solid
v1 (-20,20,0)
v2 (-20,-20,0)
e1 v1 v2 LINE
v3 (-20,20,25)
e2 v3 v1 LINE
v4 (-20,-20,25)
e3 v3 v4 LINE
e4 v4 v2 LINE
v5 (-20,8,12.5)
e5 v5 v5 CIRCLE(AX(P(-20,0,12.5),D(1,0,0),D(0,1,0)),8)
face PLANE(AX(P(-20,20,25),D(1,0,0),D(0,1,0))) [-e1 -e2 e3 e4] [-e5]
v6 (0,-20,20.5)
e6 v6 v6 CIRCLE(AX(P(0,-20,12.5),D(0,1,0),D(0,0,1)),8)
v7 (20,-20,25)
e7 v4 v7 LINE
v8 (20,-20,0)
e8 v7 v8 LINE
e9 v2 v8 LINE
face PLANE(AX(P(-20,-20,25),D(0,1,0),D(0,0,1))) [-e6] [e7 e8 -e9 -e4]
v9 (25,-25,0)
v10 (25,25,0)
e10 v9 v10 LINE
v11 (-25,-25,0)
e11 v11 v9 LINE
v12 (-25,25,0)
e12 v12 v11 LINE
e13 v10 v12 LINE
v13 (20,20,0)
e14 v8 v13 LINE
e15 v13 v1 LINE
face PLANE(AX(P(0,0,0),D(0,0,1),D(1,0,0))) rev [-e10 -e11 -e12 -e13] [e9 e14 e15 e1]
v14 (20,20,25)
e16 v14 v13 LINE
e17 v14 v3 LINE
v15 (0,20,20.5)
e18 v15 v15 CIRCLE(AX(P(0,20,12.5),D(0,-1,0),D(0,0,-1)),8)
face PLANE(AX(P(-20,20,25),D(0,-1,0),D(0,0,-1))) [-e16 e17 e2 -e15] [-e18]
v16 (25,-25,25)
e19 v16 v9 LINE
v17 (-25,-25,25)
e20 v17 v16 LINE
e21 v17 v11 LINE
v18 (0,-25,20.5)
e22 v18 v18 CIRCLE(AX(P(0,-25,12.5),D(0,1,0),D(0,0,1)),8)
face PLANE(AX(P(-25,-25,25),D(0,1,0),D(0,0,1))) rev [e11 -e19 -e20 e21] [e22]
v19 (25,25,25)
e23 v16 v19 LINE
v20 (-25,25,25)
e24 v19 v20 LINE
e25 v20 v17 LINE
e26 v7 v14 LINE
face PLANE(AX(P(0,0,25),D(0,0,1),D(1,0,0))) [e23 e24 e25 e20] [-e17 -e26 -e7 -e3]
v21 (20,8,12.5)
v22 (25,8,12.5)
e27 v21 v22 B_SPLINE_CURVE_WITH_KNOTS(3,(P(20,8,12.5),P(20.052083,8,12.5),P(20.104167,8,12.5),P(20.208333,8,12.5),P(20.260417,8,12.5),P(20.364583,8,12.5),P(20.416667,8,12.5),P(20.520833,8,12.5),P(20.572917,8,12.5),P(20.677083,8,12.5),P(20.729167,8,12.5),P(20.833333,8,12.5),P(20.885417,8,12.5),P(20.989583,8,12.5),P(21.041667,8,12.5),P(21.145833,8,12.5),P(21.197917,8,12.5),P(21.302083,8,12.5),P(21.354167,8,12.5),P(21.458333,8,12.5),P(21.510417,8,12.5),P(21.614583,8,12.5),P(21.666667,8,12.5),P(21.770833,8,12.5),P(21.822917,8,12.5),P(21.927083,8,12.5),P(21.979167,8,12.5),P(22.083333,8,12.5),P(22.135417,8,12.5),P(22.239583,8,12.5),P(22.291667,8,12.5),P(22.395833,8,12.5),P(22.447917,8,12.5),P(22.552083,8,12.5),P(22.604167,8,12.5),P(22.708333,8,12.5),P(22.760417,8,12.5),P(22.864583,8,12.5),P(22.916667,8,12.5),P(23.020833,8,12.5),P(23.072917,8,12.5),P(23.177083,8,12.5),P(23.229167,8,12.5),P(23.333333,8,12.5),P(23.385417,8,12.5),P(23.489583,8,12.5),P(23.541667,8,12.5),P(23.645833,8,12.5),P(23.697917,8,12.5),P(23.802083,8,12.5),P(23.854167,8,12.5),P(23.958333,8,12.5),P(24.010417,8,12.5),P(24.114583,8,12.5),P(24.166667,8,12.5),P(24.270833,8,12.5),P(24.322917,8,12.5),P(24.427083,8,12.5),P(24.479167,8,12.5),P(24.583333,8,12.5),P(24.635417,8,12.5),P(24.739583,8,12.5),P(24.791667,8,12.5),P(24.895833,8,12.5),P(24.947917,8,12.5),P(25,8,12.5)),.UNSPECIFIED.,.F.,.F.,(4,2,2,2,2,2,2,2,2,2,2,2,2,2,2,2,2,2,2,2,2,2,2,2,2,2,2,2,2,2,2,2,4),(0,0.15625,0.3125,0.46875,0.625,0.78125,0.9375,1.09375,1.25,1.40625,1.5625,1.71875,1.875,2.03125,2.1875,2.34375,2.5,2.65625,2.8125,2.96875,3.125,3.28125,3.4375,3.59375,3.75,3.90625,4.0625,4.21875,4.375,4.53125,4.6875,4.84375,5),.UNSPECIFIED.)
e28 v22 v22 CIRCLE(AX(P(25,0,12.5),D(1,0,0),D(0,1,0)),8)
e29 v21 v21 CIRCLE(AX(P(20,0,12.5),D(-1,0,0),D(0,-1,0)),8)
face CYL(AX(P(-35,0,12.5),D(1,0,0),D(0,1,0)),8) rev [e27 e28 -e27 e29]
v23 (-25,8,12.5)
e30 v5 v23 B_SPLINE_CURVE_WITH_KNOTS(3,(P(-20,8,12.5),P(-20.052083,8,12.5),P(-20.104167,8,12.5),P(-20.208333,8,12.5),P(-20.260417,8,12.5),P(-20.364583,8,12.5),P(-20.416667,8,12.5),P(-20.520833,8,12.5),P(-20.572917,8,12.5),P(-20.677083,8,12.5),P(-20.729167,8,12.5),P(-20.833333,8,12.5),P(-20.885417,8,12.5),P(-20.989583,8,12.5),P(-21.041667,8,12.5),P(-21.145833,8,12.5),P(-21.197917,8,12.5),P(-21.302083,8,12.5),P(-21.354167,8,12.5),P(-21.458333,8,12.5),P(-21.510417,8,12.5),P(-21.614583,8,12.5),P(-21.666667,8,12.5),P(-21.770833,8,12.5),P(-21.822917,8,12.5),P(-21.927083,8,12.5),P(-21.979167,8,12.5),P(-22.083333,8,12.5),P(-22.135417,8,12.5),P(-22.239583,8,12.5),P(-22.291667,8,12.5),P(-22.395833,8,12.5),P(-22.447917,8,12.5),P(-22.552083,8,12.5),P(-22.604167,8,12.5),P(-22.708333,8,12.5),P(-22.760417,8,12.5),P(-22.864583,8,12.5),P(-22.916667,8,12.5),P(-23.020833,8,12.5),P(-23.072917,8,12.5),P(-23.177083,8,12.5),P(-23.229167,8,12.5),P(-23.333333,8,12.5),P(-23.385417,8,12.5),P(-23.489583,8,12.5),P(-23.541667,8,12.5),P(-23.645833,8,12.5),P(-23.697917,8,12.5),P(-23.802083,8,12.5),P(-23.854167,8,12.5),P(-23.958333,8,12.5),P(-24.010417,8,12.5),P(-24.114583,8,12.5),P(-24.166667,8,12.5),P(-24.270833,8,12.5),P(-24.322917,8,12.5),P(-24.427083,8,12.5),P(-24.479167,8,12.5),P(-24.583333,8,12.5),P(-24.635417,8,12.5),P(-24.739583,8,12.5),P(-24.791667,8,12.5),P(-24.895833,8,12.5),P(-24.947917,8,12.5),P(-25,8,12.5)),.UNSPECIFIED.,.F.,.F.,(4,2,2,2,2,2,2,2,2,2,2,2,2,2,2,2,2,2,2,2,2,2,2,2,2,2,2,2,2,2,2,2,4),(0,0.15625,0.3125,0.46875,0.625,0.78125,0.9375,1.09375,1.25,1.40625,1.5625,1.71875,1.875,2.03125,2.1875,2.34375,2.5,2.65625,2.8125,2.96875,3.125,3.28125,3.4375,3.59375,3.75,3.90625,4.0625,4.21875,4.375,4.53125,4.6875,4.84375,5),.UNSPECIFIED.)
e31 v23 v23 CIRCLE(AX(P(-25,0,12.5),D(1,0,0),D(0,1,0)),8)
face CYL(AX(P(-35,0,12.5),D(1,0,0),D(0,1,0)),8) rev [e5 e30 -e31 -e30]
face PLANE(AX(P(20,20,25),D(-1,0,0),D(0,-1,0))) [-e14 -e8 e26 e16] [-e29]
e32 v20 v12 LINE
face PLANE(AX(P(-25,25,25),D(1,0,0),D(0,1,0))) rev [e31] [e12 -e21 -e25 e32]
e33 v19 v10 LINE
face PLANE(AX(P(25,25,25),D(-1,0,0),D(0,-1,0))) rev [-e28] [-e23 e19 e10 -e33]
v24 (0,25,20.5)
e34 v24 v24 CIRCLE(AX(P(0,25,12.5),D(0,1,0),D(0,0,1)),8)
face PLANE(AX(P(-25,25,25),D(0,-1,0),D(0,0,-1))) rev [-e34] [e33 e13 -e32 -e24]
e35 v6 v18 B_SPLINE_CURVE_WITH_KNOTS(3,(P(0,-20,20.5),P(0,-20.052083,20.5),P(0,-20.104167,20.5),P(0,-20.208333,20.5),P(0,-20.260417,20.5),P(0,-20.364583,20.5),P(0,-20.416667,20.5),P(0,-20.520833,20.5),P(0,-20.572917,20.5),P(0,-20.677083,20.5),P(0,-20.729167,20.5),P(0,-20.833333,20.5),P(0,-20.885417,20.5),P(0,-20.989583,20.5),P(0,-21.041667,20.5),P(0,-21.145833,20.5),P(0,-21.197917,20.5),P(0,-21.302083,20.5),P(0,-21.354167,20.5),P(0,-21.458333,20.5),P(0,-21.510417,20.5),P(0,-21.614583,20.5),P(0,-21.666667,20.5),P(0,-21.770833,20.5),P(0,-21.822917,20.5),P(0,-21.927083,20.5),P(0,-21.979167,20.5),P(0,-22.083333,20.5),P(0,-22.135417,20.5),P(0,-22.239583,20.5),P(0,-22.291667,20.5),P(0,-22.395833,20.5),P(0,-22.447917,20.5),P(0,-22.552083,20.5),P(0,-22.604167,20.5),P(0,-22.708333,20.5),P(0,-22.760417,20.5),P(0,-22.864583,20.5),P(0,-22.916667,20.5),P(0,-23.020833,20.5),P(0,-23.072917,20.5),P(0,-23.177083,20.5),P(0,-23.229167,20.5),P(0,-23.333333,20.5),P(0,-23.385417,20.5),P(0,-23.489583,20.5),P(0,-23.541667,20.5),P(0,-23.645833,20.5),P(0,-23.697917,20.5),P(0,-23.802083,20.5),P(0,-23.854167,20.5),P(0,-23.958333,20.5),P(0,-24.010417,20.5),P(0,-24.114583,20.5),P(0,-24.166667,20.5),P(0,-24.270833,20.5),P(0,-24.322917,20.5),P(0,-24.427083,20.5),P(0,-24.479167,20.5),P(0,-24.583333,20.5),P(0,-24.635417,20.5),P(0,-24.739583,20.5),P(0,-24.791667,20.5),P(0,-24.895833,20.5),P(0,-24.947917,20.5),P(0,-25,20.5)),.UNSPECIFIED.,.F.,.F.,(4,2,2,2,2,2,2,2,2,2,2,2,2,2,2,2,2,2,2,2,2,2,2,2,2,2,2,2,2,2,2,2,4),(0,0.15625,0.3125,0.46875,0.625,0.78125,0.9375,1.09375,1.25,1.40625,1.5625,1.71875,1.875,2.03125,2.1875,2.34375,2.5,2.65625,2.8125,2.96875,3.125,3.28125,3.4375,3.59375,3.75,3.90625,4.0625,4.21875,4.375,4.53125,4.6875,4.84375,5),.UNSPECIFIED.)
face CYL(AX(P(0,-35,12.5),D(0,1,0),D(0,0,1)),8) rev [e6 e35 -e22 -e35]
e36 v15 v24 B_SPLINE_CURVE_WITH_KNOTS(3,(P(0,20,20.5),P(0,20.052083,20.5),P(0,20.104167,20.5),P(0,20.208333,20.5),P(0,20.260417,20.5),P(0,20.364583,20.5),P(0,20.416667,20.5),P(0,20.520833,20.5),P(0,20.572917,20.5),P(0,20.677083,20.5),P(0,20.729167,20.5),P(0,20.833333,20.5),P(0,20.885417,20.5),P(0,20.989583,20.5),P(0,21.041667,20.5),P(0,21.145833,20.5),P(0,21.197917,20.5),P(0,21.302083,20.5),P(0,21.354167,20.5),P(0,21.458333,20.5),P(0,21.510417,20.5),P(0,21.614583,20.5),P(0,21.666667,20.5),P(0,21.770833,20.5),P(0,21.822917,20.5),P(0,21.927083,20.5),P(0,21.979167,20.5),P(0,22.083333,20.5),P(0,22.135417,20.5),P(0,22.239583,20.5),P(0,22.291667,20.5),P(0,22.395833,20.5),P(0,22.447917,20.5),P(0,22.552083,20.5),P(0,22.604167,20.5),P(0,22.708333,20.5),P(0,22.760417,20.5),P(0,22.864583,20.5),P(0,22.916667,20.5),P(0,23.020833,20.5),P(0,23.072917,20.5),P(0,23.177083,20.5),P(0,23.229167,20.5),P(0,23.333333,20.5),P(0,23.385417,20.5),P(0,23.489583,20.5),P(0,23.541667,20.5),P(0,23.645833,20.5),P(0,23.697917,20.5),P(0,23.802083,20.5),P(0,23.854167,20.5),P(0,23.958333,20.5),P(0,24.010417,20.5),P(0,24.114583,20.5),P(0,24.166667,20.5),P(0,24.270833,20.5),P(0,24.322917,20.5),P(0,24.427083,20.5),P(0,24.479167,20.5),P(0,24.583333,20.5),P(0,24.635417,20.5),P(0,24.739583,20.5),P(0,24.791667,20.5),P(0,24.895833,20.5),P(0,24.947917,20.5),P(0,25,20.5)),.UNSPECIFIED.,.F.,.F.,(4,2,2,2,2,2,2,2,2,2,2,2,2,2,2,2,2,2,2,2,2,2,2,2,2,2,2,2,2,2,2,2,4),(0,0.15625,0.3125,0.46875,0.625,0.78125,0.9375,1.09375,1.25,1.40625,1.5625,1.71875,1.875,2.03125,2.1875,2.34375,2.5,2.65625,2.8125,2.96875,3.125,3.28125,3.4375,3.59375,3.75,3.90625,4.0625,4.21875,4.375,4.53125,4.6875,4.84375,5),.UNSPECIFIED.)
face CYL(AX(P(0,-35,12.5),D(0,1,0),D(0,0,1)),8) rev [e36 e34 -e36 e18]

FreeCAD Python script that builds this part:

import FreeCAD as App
import Part
import Sketcher
from FreeCAD import Vector
Q = App.Units.Quantity


def add_polygon(sketch, points):
    """Adds a closed chain of lines whose ends are joined by coincident constraints."""
    first, n = sketch.GeometryCount, len(points)
    for a, b in zip(points, points[1:] + points[:1]):
        sketch.addGeometry(Part.LineSegment(App.Vector(*a, 0), App.Vector(*b, 0)), False)
    for i in range(n):
        sketch.addConstraint(Sketcher.Constraint("Coincident", first + i, 2, first + (i + 1) % n, 1))

doc = App.newDocument("Part")
body = doc.addObject("PartDesign::Body", "Body")

# Sketch on XY plane
sketch1 = body.newObject("Sketcher::SketchObject", "Sketch")
sketch1.AttachmentSupport = (doc.getObject("XY_Plane"), [""])
sketch1.MapMode = "FlatFace"
add_polygon(sketch1, [(-25, 25), (-25, -25), (25, -25), (25, 25)])  # lines 0-3
add_polygon(sketch1, [(20, -20), (-20, -20), (-20, 20), (20, 20)])  # lines 4-7
sketch1.addConstraint([
    Sketcher.Constraint("Vertical", 0),
    Sketcher.Constraint("Horizontal", 1),
    Sketcher.Constraint("Vertical", 2),
    Sketcher.Constraint("Horizontal", 3),
    Sketcher.Constraint("Horizontal", 4),
    Sketcher.Constraint("Vertical", 5),
    Sketcher.Constraint("Horizontal", 6),
    Sketcher.Constraint("Vertical", 7),
    Sketcher.Constraint("Symmetric", 0, 2, 2, 2, -1, 1),
    Sketcher.Constraint("Symmetric", 4, 2, 6, 2, -1, 1),
    Sketcher.Constraint("Equal", 3, 0),
    Sketcher.Constraint("Equal", 6, 5),
    Sketcher.Constraint("DistanceX", 1, 1, 1, 2, Q("50 mm")),
    Sketcher.Constraint("DistanceX", 4, 2, 4, 1, Q("40 mm")),
])
pad1 = body.newObject("PartDesign::Pad", "Pad")
pad1.Profile = sketch1
pad1.Length = 25

# Sketch on XZ plane
sketch2 = body.newObject("Sketcher::SketchObject", "Sketch001")
sketch2.AttachmentSupport = (doc.getObject("XZ_Plane"), [""])
sketch2.MapMode = "FlatFace"
sketch2.AttachmentOffset = App.Placement(Vector(0, 0, -25), App.Rotation())
sketch2.addGeometry(Part.Circle(Vector(0, 12, 0), Vector(0, 0, 1), 8), False)
sketch2.addConstraint([
    Sketcher.Constraint("PointOnObject", 0, 3, -2),
    Sketcher.Constraint("Diameter", 0, Q("16 mm")),
    Sketcher.Constraint("DistanceY", -1, 1, 0, 3, Q("12.5 mm")),
])
pocket1 = body.newObject("PartDesign::Pocket", "Pocket")
pocket1.Profile = sketch2
pocket1.Length = 60
pocket1.Reversed = True

# Sketch on YZ plane
sketch3 = body.newObject("Sketcher::SketchObject", "Sketch002")
sketch3.AttachmentSupport = (doc.getObject("YZ_Plane"), [""])
sketch3.MapMode = "FlatFace"
sketch3.AttachmentOffset = App.Placement(Vector(0, 0, 25), App.Rotation())
sketch3.addGeometry(Part.Circle(Vector(0, 12, 0), Vector(0, 0, 1), 8), False)
sketch3.addConstraint([
    Sketcher.Constraint("PointOnObject", 0, 3, -2),
    Sketcher.Constraint("Diameter", 0, Q("16 mm")),
    Sketcher.Constraint("DistanceY", -1, 1, 0, 3, Q("12.5 mm")),
])
pocket2 = body.newObject("PartDesign::Pocket", "Pocket001")
pocket2.Profile = sketch3
pocket2.Length = 60

doc.recompute()
